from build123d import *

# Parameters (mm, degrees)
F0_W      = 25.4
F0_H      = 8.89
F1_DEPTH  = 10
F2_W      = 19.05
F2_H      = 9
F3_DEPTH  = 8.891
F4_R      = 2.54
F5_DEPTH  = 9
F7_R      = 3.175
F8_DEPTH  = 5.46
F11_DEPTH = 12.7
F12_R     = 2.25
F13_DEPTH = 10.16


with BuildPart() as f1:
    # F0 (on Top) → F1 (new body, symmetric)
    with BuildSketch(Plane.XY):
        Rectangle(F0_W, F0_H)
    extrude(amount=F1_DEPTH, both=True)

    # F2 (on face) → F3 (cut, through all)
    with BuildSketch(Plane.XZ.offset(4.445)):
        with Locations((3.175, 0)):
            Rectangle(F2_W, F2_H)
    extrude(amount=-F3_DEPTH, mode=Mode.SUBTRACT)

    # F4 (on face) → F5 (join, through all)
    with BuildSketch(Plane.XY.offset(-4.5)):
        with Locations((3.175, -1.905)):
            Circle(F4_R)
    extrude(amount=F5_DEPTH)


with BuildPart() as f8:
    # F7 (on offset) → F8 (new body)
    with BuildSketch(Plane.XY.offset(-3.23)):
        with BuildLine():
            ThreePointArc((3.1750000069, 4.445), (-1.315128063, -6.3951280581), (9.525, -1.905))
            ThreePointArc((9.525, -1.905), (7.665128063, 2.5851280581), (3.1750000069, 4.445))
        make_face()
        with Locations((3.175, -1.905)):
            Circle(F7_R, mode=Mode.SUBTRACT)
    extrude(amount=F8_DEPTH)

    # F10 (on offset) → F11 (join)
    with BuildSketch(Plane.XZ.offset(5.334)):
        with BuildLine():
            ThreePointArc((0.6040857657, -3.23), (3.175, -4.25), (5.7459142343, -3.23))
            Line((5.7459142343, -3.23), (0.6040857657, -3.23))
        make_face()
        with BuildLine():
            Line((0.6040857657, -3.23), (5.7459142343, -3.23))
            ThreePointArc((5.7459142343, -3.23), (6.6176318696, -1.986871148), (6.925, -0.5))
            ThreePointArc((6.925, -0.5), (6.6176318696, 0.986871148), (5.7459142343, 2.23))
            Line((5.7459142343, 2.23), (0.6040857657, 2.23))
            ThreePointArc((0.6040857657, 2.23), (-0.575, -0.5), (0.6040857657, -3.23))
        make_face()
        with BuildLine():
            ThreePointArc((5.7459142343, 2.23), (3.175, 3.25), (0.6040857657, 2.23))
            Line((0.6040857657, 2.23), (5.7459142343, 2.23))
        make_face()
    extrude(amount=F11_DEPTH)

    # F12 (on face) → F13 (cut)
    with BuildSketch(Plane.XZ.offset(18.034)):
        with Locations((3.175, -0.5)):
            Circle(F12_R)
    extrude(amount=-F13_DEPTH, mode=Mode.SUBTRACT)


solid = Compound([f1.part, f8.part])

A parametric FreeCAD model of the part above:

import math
import FreeCAD as App
import Part
import Sketcher
Q = App.Units.Quantity

doc = App.newDocument("Part")
params = doc.addObject("Spreadsheet::Sheet", "Params")
for row, (alias, value) in enumerate([
    ("sketch1_width", "1 in"),
    ("sketch1_height", "0.35 in"),
    ("pad1_length", "20 mm"),
    ("sketch2_width", "0.75 in"),
    ("sketch3_diameter", "0.2 in"),
    ("sketch4_diameter", "0.25 in"),
    ("sketch4_radius", "0.25 in"),
    ("pad3_length", "5.46 mm"),
    ("pad4_length", "0.5 in"),
    ("pocket2_length", "0.4 in"),
], start=1):
    params.set(f"A{row}", alias)
    params.set(f"B{row}", "=" + value)
    params.setAlias(f"B{row}", alias)

body = doc.addObject("PartDesign::Body", "Body")

# Sketch on XY plane
sketch1 = body.newObject("Sketcher::SketchObject", "Sketch")
sketch1.AttachmentSupport = (doc.getObject("XY_Plane"), [""])
sketch1.MapMode = "FlatFace"
sketch1.addGeometry([
    Part.LineSegment(App.Vector(-13, 4, 0), App.Vector(-13, -4, 0)),
    Part.LineSegment(App.Vector(-13, -4, 0), App.Vector(13, -4, 0)),
    Part.LineSegment(App.Vector(13, -4, 0), App.Vector(13, 4, 0)),
    Part.LineSegment(App.Vector(13, 4, 0), App.Vector(-13, 4, 0)),
], False)
sketch1.addConstraint([
    Sketcher.Constraint("Coincident", 0, 2, 1, 1),
    Sketcher.Constraint("Coincident", 1, 2, 2, 1),
    Sketcher.Constraint("Coincident", 2, 2, 3, 1),
    Sketcher.Constraint("Coincident", 3, 2, 0, 1),
    Sketcher.Constraint("Vertical", 0),
    Sketcher.Constraint("Horizontal", 1),
    Sketcher.Constraint("Vertical", 2),
    Sketcher.Constraint("Horizontal", 3),
    Sketcher.Constraint("Symmetric", 0, 2, 2, 2, -1, 1),
    Sketcher.Constraint("DistanceX", 1, 1, 1, 2, Q("1 in")),
    Sketcher.Constraint("DistanceY", 0, 2, 0, 1, Q("0.35 in")),
])
sketch1.setExpression("Constraints[9]", "Params.sketch1_width")
sketch1.setExpression("Constraints[10]", "Params.sketch1_height")
pad1 = body.newObject("PartDesign::Pad", "Pad")
pad1.Profile = sketch1
pad1.setExpression("Length", "Params.pad1_length")
pad1.Midplane = True

# Sketch on XZ plane
sketch2 = body.newObject("Sketcher::SketchObject", "Sketch001")
sketch2.AttachmentSupport = (doc.getObject("XZ_Plane"), [""])
sketch2.MapMode = "FlatFace"
sketch2.AttachmentOffset = App.Placement(App.Vector(0, 0, 0.175 * 25.4), App.Rotation())
sketch2.addGeometry([
    Part.LineSegment(App.Vector(-6, 4, 0), App.Vector(-6, -4, 0)),
    Part.LineSegment(App.Vector(-6, -4, 0), App.Vector(13, -4, 0)),
    Part.LineSegment(App.Vector(13, -4, 0), App.Vector(13, 4, 0)),
    Part.LineSegment(App.Vector(13, 4, 0), App.Vector(-6, 4, 0)),
], False)
sketch2.addConstraint([
    Sketcher.Constraint("Coincident", 0, 2, 1, 1),
    Sketcher.Constraint("Coincident", 1, 2, 2, 1),
    Sketcher.Constraint("Coincident", 2, 2, 3, 1),
    Sketcher.Constraint("Coincident", 3, 2, 0, 1),
    Sketcher.Constraint("Vertical", 0),
    Sketcher.Constraint("Horizontal", 1),
    Sketcher.Constraint("Vertical", 2),
    Sketcher.Constraint("Horizontal", 3),
    Sketcher.Constraint("DistanceX", 1, 1, 1, 2, Q("0.75 in")),
    Sketcher.Constraint("DistanceX", -1, 1, 1, 2, Q("0.5 in")),
    Sketcher.Constraint("DistanceY", 0, 2, 0, 1, 9.0),
    Sketcher.Constraint("DistanceY", 0, 2, -1, 1, 4.5),
])
sketch2.setExpression("Constraints[8]", "Params.sketch2_width")
pocket1 = body.newObject("PartDesign::Pocket", "Pocket")
pocket1.Profile = sketch2
pocket1.Type = "ThroughAll"

# Sketch on XY plane
sketch3 = body.newObject("Sketcher::SketchObject", "Sketch002")
sketch3.AttachmentSupport = (doc.getObject("XY_Plane"), [""])
sketch3.MapMode = "FlatFace"
sketch3.AttachmentOffset = App.Placement(App.Vector(0, 0, -4.5), App.Rotation())
sketch3.addGeometry(Part.Circle(App.Vector(3.2, -1.9, 0), App.Vector(0, 0, 1), 2.5), False)
sketch3.addConstraint([
    Sketcher.Constraint("Diameter", 0, Q("0.2 in")),
    Sketcher.Constraint("DistanceX", -1, 1, 0, 3, Q("0.125 in")),
    Sketcher.Constraint("DistanceY", 0, 3, -1, 1, Q("0.075 in")),
])
sketch3.setExpression("Constraints[0]", "Params.sketch3_diameter")
pad2 = body.newObject("PartDesign::Pad", "Pad001")
pad2.Profile = sketch3
pad2.Type = "UpToLast"
body2 = doc.addObject("PartDesign::Body", "Body001")

# Sketch on XY plane
sketch4 = body2.newObject("Sketcher::SketchObject", "Sketch003")
sketch4.AttachmentSupport = (doc.getObject("XY_Plane001"), [""])
sketch4.MapMode = "FlatFace"
sketch4.AttachmentOffset = App.Placement(App.Vector(0, 0, -3.23), App.Rotation())
sketch4.addGeometry([
    Part.ArcOfCircle(Part.Circle(App.Vector(3.2, -1.9, 0), App.Vector(0, 0, 1), 6.3), math.radians(90), math.radians(360)),
    Part.ArcOfCircle(Part.Circle(App.Vector(3.2, -1.9, 0), App.Vector(0, 0, 1), 6.3), math.radians(0), math.radians(90)),
    Part.Circle(App.Vector(3.2, -1.9, 0), App.Vector(0, 0, 1), 3.2),
], False)
sketch4.addConstraint([
    Sketcher.Constraint("Tangent", 0, 1, 1, 2),
    Sketcher.Constraint("Coincident", 1, 1, 0, 2),
    Sketcher.Constraint("Coincident", 2, 3, 0, 3),
    Sketcher.Constraint("Horizontal", 2, 3, 1, 1),
    Sketcher.Constraint("Vertical", 2, 3, 0, 1),
    Sketcher.Constraint("Diameter", 2, Q("0.25 in")),
    Sketcher.Constraint("Radius", 0, Q("0.25 in")),
    Sketcher.Constraint("DistanceX", -1, 1, 0, 3, Q("0.125 in")),
    Sketcher.Constraint("DistanceY", 0, 3, -1, 1, Q("0.075 in")),
])
sketch4.setExpression("Constraints[5]", "Params.sketch4_diameter")
sketch4.setExpression("Constraints[6]", "Params.sketch4_radius")
pad3 = body2.newObject("PartDesign::Pad", "Pad002")
pad3.Profile = sketch4
pad3.setExpression("Length", "Params.pad3_length")

# Sketch on XZ plane
sketch5 = body2.newObject("Sketcher::SketchObject", "Sketch004")
sketch5.AttachmentSupport = (doc.getObject("XZ_Plane001"), [""])
sketch5.MapMode = "FlatFace"
sketch5.AttachmentOffset = App.Placement(App.Vector(0, 0, 0.21 * 25.4), App.Rotation())
sketch5.addGeometry([
    Part.ArcOfCircle(Part.Circle(App.Vector(3.2, -0.5, 0), App.Vector(0, 0, 1), 3.8), math.radians(-133), math.radians(-47)),  # 0
    Part.ArcOfCircle(Part.Circle(App.Vector(3.2, -0.5, 0), App.Vector(0, 0, 1), 3.8), math.radians(-47), math.radians(0)),  # 1
    Part.ArcOfCircle(Part.Circle(App.Vector(3.2, -0.5, 0), App.Vector(0, 0, 1), 3.8), math.radians(0), math.radians(47)),  # 2
    Part.ArcOfCircle(Part.Circle(App.Vector(3.2, -0.5, 0), App.Vector(0, 0, 1), 3.8), math.radians(47), math.radians(133)),  # 3
    Part.ArcOfCircle(Part.Circle(App.Vector(3.2, -0.5, 0), App.Vector(0, 0, 1), 3.8), math.radians(133), math.radians(227)),  # 4
], False)
sketch5.addConstraint([
    Sketcher.Constraint("Tangent", 0, 2, 1, 1),
    Sketcher.Constraint("Tangent", 1, 2, 2, 1),
    Sketcher.Constraint("Tangent", 2, 2, 3, 1),
    Sketcher.Constraint("Tangent", 3, 2, 4, 1),
    Sketcher.Constraint("Tangent", 4, 2, 0, 1),
    Sketcher.Constraint("Coincident", 2, 3, 0, 3),
    Sketcher.Constraint("Horizontal", 4, 3, 1, 2),
    Sketcher.Constraint("Horizontal", 2, 2, 3, 2),
    Sketcher.Constraint("Horizontal", 0, 2, 4, 2),
    Sketcher.Constraint("Vertical", 0, 2, 2, 2),
    Sketcher.Constraint("Radius", 0, 3.75),
    Sketcher.Constraint("DistanceX", -1, 1, 0, 3, Q("0.125 in")),
    Sketcher.Constraint("DistanceY", 0, 3, -1, 1, 0.5),
    Sketcher.Constraint("DistanceY", 0, 2, -1, 1, 3.23),
])
pad4 = body2.newObject("PartDesign::Pad", "Pad003")
pad4.Profile = sketch5
pad4.setExpression("Length", "Params.pad4_length")

# Sketch on XZ plane
sketch6 = body2.newObject("Sketcher::SketchObject", "Sketch005")
sketch6.AttachmentSupport = (doc.getObject("XZ_Plane001"), [""])
sketch6.MapMode = "FlatFace"
sketch6.AttachmentOffset = App.Placement(App.Vector(0, 0, 0.71 * 25.4), App.Rotation())
sketch6.addGeometry(Part.Circle(App.Vector(3.2, -0.5, 0), App.Vector(0, 0, 1), 2.2), False)
sketch6.addConstraint([
    Sketcher.Constraint("Diameter", 0, 4.5),
    Sketcher.Constraint("DistanceX", -1, 1, 0, 3, Q("0.125 in")),
    Sketcher.Constraint("DistanceY", 0, 3, -1, 1, 0.5),
])
pocket2 = body2.newObject("PartDesign::Pocket", "Pocket001")
pocket2.Profile = sketch6
pocket2.setExpression("Length", "Params.pocket2_length")

doc.recompute()
